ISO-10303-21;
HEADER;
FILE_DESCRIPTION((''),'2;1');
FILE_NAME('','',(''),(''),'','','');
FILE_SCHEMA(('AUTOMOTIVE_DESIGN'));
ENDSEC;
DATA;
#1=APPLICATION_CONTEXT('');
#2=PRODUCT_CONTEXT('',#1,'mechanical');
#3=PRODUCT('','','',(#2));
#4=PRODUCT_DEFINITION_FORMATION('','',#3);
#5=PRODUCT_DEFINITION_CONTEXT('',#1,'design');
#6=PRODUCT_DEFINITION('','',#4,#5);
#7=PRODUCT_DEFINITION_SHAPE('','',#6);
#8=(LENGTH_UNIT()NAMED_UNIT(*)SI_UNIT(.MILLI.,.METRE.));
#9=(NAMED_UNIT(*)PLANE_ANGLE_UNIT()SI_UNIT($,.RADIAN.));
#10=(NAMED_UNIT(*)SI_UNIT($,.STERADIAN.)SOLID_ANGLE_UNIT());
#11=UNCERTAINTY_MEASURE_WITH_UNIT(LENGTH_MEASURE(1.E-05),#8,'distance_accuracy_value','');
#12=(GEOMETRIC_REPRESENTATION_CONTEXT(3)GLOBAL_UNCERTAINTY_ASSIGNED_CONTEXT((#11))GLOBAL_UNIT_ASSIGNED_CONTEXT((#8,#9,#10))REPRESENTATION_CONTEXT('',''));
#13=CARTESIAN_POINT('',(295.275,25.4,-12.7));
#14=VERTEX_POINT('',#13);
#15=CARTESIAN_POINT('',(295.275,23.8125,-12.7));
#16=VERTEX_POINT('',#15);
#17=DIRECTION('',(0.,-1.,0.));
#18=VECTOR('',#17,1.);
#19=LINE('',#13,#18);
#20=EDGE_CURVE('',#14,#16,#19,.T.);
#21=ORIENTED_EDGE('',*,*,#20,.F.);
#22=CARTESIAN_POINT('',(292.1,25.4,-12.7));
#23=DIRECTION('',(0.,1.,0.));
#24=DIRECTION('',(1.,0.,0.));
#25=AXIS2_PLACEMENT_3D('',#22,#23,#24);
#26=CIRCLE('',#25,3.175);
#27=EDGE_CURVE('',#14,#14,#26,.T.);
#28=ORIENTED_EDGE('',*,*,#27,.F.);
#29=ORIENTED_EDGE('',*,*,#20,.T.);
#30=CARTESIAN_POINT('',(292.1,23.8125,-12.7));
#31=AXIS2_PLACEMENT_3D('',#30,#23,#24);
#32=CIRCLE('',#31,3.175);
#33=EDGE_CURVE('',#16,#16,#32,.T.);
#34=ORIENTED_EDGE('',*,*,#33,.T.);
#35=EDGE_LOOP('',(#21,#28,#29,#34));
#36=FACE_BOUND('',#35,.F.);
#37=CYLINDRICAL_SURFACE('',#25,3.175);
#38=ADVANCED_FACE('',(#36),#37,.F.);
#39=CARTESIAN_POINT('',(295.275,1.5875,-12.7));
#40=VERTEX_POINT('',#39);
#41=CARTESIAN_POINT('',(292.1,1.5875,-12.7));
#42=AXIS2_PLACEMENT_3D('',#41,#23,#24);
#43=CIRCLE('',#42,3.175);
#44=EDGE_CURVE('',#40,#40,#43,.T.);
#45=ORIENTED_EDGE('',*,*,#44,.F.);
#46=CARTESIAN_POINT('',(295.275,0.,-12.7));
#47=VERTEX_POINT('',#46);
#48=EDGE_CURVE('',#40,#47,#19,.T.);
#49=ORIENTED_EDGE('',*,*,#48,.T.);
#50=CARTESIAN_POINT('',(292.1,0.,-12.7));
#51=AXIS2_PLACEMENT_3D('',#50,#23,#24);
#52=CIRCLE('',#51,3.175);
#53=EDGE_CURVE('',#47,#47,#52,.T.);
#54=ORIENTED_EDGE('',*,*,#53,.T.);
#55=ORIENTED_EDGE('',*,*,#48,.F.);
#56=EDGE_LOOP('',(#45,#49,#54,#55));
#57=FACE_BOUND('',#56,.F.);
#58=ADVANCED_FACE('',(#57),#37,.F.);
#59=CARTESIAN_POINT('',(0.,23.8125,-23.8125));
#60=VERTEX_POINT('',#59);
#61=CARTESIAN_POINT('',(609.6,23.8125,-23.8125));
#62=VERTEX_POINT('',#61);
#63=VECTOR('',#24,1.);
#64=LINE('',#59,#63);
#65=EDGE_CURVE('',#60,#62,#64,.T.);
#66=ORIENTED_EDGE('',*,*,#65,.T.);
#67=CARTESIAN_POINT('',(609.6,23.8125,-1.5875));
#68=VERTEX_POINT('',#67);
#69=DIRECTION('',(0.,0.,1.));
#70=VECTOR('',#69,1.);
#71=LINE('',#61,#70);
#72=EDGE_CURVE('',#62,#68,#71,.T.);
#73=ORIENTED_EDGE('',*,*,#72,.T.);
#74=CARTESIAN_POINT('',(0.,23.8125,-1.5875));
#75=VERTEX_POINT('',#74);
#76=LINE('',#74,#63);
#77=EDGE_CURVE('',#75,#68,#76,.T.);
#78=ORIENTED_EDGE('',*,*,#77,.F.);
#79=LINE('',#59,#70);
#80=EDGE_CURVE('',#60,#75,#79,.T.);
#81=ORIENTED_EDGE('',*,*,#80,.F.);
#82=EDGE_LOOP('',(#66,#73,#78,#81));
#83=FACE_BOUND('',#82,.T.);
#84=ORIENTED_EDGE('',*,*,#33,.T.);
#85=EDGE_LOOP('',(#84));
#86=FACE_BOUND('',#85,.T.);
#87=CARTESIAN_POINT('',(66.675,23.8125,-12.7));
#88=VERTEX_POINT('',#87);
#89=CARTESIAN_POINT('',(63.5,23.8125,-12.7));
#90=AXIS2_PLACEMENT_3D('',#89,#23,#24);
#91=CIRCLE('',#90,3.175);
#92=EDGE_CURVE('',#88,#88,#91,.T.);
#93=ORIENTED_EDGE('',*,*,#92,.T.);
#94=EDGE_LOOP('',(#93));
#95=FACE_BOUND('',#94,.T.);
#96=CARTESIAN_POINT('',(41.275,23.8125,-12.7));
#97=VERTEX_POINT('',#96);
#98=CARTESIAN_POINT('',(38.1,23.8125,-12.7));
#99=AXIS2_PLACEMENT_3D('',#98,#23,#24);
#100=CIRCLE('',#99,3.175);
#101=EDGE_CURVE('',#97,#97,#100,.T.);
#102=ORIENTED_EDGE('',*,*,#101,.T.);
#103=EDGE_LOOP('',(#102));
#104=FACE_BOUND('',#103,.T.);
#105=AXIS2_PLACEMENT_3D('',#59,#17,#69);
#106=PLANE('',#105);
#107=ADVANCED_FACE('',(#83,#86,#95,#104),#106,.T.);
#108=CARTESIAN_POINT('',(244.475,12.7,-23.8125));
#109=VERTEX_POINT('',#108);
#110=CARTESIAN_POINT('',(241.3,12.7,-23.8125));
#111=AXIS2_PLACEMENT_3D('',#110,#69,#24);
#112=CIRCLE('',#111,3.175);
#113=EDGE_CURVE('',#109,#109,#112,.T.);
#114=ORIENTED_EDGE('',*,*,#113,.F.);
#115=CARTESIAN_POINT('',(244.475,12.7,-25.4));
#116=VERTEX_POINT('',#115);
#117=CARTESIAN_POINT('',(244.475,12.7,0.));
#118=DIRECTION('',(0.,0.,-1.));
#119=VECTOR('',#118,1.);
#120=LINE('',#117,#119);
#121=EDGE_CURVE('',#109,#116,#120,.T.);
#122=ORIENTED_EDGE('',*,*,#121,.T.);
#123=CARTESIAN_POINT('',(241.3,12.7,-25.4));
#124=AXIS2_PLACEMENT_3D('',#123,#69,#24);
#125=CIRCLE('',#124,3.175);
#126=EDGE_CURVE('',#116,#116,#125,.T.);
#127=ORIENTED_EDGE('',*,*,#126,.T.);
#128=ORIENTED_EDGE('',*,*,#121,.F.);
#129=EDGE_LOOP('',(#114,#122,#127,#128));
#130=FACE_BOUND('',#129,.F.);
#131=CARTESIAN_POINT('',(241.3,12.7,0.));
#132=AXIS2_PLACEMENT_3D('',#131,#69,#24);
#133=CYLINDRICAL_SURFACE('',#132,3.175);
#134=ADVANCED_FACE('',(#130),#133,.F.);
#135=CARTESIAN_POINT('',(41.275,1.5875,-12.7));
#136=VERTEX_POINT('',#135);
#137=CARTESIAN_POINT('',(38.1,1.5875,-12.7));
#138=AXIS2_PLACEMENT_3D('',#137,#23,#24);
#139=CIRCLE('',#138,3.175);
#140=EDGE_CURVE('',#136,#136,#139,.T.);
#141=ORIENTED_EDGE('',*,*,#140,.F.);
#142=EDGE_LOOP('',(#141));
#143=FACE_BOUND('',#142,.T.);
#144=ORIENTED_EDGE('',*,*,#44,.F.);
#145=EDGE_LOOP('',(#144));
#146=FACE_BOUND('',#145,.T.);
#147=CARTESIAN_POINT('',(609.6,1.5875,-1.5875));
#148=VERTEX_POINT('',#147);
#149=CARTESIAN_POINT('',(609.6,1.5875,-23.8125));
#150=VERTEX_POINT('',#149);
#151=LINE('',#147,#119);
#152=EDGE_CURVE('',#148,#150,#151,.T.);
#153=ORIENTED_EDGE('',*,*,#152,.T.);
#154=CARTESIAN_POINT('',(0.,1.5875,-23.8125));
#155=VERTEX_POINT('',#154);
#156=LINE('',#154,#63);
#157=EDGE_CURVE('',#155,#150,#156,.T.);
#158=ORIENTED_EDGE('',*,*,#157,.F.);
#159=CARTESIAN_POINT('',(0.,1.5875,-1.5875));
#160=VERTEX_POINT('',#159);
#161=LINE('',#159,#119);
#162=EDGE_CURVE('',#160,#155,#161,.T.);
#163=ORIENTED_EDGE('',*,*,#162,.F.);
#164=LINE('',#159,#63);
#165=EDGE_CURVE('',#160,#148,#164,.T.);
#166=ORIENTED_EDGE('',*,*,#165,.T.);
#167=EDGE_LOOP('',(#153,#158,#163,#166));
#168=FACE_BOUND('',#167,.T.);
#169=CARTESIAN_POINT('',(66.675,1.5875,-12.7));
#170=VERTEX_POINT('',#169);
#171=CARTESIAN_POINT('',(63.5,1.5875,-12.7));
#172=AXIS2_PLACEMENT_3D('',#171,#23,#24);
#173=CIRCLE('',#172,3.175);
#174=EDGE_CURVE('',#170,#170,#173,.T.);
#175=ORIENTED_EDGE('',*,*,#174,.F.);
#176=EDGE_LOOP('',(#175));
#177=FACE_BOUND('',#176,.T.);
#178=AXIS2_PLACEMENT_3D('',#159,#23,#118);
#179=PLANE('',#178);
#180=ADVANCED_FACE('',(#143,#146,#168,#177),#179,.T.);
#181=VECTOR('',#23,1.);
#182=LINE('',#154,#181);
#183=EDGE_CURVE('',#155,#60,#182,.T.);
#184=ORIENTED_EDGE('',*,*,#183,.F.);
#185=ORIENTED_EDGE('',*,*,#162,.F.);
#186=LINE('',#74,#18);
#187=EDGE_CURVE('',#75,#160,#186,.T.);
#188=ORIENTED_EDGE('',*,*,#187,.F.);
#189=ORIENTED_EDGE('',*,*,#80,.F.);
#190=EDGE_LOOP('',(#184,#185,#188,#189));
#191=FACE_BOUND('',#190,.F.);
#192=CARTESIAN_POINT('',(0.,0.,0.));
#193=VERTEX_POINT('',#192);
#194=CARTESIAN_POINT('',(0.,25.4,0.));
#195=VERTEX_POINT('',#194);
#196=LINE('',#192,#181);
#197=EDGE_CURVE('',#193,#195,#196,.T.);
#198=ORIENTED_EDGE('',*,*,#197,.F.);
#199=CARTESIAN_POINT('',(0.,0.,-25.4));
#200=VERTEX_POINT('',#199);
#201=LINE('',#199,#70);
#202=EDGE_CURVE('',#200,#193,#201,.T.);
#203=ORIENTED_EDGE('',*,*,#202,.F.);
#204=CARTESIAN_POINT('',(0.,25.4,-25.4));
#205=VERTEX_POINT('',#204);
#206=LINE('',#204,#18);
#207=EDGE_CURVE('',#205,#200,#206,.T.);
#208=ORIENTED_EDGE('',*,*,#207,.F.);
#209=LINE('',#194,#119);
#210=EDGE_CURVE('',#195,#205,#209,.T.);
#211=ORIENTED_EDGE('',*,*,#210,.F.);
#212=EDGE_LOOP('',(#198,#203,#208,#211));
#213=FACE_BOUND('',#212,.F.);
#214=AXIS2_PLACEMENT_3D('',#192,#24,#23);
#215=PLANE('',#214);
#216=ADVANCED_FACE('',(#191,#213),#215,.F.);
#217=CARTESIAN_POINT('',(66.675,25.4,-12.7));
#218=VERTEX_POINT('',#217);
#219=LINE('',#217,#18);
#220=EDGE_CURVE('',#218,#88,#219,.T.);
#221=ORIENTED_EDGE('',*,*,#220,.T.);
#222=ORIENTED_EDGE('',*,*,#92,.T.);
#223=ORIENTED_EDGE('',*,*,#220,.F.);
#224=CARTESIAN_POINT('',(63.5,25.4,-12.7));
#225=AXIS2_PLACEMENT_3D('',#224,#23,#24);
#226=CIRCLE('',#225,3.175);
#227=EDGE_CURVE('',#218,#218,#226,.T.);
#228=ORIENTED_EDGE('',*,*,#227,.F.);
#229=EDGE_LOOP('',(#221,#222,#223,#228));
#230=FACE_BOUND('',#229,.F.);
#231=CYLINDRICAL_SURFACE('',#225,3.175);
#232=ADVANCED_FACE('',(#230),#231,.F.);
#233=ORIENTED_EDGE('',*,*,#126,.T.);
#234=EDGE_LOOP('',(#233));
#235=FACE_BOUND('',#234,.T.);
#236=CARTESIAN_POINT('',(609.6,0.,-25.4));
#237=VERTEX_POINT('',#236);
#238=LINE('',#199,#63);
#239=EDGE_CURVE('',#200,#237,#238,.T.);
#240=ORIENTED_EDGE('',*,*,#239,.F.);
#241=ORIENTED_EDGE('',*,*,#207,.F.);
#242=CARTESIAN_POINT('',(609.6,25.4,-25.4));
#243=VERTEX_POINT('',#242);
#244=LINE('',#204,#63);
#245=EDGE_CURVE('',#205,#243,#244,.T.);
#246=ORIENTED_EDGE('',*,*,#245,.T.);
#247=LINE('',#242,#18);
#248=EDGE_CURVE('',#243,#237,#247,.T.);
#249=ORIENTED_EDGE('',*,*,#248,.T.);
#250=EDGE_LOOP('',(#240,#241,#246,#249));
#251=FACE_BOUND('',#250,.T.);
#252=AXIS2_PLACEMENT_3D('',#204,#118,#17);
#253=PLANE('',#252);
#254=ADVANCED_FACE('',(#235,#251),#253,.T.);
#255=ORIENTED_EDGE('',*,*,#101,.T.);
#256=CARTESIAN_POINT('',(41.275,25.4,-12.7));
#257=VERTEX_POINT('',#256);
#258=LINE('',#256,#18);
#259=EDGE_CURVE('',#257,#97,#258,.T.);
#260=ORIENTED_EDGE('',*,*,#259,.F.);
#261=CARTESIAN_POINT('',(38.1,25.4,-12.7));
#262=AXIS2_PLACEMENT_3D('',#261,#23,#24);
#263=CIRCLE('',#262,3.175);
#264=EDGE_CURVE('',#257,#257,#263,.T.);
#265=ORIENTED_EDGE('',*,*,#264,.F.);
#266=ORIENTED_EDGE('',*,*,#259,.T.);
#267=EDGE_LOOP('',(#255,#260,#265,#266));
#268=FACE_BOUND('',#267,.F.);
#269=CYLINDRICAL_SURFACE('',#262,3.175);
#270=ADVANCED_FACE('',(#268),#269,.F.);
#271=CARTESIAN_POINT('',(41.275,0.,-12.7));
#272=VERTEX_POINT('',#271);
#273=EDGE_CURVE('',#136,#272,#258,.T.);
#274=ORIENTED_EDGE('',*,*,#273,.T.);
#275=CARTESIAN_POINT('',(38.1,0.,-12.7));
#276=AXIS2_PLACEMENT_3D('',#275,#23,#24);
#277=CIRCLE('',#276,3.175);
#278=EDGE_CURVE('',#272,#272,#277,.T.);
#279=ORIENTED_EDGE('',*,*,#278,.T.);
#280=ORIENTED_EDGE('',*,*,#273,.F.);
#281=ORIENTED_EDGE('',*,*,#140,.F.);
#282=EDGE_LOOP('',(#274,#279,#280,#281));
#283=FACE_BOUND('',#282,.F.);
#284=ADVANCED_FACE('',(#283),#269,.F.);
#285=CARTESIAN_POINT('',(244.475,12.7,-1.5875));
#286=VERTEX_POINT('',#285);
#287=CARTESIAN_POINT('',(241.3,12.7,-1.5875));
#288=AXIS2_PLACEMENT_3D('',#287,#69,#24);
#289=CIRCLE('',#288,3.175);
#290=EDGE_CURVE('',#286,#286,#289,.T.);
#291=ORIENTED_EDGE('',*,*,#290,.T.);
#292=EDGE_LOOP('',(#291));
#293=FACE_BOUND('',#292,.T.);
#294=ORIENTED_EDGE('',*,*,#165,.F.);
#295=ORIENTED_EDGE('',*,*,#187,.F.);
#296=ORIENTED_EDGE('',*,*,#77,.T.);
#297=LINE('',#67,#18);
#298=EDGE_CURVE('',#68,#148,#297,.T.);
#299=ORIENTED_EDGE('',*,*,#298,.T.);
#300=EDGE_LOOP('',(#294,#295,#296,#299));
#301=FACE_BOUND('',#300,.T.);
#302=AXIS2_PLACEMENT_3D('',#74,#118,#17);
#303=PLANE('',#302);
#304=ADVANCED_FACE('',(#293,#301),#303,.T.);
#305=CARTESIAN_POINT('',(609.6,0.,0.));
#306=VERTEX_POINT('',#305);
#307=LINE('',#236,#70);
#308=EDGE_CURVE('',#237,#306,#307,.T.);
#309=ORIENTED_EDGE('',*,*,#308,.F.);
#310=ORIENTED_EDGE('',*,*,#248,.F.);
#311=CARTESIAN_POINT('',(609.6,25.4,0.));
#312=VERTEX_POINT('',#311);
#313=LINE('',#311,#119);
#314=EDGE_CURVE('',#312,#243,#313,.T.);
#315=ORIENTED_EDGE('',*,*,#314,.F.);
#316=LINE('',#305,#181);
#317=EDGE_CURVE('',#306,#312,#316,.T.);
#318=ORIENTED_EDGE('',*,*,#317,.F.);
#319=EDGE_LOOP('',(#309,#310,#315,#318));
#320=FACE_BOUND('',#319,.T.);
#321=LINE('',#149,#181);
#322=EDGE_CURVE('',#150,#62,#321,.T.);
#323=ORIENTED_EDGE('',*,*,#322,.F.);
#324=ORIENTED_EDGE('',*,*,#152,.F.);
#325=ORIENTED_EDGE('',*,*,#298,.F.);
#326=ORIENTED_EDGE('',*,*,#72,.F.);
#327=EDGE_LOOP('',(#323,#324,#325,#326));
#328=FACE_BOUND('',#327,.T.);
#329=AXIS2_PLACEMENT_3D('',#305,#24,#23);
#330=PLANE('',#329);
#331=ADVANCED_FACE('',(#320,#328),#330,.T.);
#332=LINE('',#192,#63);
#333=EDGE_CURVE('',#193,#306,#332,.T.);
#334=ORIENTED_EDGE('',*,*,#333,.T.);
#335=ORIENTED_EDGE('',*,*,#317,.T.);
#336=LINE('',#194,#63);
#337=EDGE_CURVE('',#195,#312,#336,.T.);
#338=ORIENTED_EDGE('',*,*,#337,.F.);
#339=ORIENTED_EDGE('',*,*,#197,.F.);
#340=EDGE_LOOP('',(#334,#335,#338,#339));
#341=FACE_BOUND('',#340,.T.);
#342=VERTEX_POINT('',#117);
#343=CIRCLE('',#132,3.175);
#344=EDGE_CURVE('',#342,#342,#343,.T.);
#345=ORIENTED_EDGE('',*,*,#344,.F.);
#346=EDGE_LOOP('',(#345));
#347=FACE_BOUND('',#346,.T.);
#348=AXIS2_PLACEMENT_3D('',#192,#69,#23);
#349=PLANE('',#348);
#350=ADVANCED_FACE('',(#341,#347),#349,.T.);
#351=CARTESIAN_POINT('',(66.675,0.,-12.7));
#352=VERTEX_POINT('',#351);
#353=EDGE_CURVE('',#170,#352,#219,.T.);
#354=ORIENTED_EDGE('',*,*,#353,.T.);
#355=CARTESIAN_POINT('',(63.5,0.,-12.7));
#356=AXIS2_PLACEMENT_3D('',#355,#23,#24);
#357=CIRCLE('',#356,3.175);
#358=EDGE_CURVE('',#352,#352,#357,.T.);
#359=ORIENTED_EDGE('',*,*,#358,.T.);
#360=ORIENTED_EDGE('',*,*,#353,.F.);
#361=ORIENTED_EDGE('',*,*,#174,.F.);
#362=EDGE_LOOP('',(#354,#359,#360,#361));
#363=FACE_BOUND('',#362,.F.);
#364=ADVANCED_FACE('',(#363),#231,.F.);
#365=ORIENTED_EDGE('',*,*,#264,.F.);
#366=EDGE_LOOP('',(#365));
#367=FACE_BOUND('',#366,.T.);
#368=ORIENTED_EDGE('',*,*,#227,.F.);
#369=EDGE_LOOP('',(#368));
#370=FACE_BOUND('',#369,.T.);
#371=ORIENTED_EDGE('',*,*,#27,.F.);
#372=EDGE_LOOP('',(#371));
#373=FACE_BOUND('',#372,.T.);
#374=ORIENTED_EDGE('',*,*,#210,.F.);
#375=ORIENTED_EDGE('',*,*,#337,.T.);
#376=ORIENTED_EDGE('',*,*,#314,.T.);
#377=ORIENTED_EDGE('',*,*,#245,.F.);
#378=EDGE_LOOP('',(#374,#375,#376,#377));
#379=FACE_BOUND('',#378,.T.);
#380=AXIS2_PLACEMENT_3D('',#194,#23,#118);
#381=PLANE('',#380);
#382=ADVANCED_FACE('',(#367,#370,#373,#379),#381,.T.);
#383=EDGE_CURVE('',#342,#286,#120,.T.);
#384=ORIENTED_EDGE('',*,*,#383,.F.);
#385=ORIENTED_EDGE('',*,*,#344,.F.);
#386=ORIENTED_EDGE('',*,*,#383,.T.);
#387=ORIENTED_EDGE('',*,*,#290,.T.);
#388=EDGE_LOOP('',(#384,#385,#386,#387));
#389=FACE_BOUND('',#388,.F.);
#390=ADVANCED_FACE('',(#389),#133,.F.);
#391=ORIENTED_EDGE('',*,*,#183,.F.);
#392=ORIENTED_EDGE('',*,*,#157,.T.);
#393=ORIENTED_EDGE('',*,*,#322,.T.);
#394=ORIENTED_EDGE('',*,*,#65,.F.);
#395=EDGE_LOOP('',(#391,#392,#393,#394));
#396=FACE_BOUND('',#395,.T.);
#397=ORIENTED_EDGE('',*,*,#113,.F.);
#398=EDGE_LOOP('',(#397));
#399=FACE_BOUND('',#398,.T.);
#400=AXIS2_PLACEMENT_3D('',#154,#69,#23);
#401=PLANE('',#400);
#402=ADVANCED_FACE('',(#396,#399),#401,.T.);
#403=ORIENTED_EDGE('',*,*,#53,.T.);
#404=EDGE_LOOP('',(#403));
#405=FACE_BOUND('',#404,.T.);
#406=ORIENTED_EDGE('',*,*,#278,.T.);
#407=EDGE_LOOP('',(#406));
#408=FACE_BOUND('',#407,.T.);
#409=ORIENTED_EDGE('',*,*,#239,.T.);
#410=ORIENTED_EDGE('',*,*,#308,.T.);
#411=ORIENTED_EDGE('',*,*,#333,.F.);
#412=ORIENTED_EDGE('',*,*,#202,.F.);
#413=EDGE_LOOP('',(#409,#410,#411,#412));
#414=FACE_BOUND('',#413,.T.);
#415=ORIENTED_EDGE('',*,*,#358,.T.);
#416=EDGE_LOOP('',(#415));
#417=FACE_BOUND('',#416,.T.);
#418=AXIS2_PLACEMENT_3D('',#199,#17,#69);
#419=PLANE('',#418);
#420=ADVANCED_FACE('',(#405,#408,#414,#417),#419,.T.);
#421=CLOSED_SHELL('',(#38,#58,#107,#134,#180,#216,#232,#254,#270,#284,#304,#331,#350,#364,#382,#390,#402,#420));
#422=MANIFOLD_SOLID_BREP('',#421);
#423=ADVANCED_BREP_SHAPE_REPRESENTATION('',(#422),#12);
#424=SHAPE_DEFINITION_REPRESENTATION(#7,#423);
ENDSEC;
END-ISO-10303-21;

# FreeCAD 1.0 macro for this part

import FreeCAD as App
import Part
import Sketcher

V = App.Vector
Q = App.Units.Quantity


def add_polygon(sketch, points):
    """Adds a closed chain of lines whose ends are joined by coincident constraints."""
    first, n = sketch.GeometryCount, len(points)
    for a, b in zip(points, points[1:] + points[:1]):
        sketch.addGeometry(Part.LineSegment(App.Vector(*a, 0), App.Vector(*b, 0)), False)
    for i in range(n):
        sketch.addConstraint(Sketcher.Constraint("Coincident", first + i, 2, first + (i + 1) % n, 1))

doc = App.newDocument("Part")
params = doc.addObject("Spreadsheet::Sheet", "Params")
for row, (alias, value) in enumerate([
    ("sketch1_width", "1 in"),
    ("pad1_length", "24 in"),
    ("sketch2_diameter", "0.25 in"),
    ("pocket1_length", "1 in"),
    ("sketch3_diameter", "0.25 in"),
    ("pocket2_length", "1 in"),
], start=1):
    params.set(f"A{row}", alias)
    params.set(f"B{row}", "=" + value)
    params.setAlias(f"B{row}", alias)

body = doc.addObject("PartDesign::Body", "Body")

sketch1 = body.newObject("Sketcher::SketchObject", "Sketch")
sketch1.AttachmentSupport = (doc.getObject("YZ_Plane"), [""])
sketch1.MapMode = "FlatFace"
add_polygon(sketch1, [(25, 0), (0, 0), (0, -25), (25, -25)])
add_polygon(sketch1, [(2, -2), (24, -2), (24, -24), (2, -24)])
sketch1.addConstraint([
    Sketcher.Constraint("Horizontal", 0),
    Sketcher.Constraint("Vertical", 1),
    Sketcher.Constraint("Horizontal", 2),
    Sketcher.Constraint("Vertical", 3),
    Sketcher.Constraint("Horizontal", 4),
    Sketcher.Constraint("Vertical", 5),
    Sketcher.Constraint("Horizontal", 6),
    Sketcher.Constraint("Vertical", 7),
    Sketcher.Constraint("Coincident", 0, 2, -1, 1),
    Sketcher.Constraint("Equal", 2, 1),
    Sketcher.Constraint("Equal", 6, 5),
    Sketcher.Constraint("DistanceX", 0, 2, 0, 1, Q("1 in")),
    Sketcher.Constraint("DistanceY", 4, 2, -1, 1, Q("0.0625 in")),
    Sketcher.Constraint("DistanceX", -1, 1, 6, 2, Q("0.0625 in")),
    Sketcher.Constraint("DistanceX", 4, 2, 3, 2, Q("0.0625 in")),
])
sketch1.setExpression("Constraints[19]", "Params.sketch1_width")
pad1 = body.newObject("PartDesign::Pad", "Pad")
pad1.Profile = sketch1
pad1.setExpression("Length", "Params.pad1_length")

sketch2 = body.newObject("Sketcher::SketchObject", "Sketch001")
sketch2.AttachmentSupport = (doc.getObject("XZ_Plane"), [""])
sketch2.MapMode = "FlatFace"
sketch2.AttachmentOffset = App.Placement(V(0, 0, -1 * 25.4), App.Rotation())
sketch2.addGeometry([
    Part.Circle(V(38.1, -12.7, 0), V(0, 0, 1), 3.2),
    Part.Circle(V(63.5, -12.7, 0), V(0, 0, 1), 3.2),
    Part.Circle(V(292.1, -12.7, 0), V(0, 0, 1), 3.2),
], False)
sketch2.addConstraint([
    Sketcher.Constraint("Equal", 0, 1),
    Sketcher.Constraint("Equal", 1, 2),
    Sketcher.Constraint("Horizontal", 0, 3, 1, 3),
    Sketcher.Constraint("Horizontal", 1, 3, 2, 3),
    Sketcher.Constraint("Diameter", 0, Q("0.25 in")),
    Sketcher.Constraint("DistanceX", -1, 1, 0, 3, Q("1.5 in")),
    Sketcher.Constraint("DistanceX", -1, 1, 1, 3, Q("2.5 in")),
    Sketcher.Constraint("DistanceX", -1, 1, 2, 3, Q("11.5 in")),
    Sketcher.Constraint("DistanceY", 0, 3, -1, 1, Q("0.5 in")),
])
sketch2.setExpression("Constraints[4]", "Params.sketch2_diameter")
pocket1 = body.newObject("PartDesign::Pocket", "Pocket")
pocket1.Profile = sketch2
pocket1.setExpression("Length", "Params.pocket1_length")
pocket1.Reversed = True

sketch3 = body.newObject("Sketcher::SketchObject", "Sketch002")
sketch3.AttachmentSupport = (doc.getObject("XY_Plane"), [""])
sketch3.MapMode = "FlatFace"
sketch3.addGeometry(Part.Circle(V(241.3, 12.7, 0), V(0, 0, 1), 3.2), False)
sketch3.addConstraint([
    Sketcher.Constraint("Diameter", 0, Q("0.25 in")),
    Sketcher.Constraint("DistanceX", -1, 1, 0, 3, Q("9.5 in")),
    Sketcher.Constraint("DistanceY", -1, 1, 0, 3, Q("0.5 in")),
])
sketch3.setExpression("Constraints[0]", "Params.sketch3_diameter")
pocket2 = body.newObject("PartDesign::Pocket", "Pocket001")
pocket2.Profile = sketch3
pocket2.setExpression("Length", "Params.pocket2_length")

doc.recompute()
